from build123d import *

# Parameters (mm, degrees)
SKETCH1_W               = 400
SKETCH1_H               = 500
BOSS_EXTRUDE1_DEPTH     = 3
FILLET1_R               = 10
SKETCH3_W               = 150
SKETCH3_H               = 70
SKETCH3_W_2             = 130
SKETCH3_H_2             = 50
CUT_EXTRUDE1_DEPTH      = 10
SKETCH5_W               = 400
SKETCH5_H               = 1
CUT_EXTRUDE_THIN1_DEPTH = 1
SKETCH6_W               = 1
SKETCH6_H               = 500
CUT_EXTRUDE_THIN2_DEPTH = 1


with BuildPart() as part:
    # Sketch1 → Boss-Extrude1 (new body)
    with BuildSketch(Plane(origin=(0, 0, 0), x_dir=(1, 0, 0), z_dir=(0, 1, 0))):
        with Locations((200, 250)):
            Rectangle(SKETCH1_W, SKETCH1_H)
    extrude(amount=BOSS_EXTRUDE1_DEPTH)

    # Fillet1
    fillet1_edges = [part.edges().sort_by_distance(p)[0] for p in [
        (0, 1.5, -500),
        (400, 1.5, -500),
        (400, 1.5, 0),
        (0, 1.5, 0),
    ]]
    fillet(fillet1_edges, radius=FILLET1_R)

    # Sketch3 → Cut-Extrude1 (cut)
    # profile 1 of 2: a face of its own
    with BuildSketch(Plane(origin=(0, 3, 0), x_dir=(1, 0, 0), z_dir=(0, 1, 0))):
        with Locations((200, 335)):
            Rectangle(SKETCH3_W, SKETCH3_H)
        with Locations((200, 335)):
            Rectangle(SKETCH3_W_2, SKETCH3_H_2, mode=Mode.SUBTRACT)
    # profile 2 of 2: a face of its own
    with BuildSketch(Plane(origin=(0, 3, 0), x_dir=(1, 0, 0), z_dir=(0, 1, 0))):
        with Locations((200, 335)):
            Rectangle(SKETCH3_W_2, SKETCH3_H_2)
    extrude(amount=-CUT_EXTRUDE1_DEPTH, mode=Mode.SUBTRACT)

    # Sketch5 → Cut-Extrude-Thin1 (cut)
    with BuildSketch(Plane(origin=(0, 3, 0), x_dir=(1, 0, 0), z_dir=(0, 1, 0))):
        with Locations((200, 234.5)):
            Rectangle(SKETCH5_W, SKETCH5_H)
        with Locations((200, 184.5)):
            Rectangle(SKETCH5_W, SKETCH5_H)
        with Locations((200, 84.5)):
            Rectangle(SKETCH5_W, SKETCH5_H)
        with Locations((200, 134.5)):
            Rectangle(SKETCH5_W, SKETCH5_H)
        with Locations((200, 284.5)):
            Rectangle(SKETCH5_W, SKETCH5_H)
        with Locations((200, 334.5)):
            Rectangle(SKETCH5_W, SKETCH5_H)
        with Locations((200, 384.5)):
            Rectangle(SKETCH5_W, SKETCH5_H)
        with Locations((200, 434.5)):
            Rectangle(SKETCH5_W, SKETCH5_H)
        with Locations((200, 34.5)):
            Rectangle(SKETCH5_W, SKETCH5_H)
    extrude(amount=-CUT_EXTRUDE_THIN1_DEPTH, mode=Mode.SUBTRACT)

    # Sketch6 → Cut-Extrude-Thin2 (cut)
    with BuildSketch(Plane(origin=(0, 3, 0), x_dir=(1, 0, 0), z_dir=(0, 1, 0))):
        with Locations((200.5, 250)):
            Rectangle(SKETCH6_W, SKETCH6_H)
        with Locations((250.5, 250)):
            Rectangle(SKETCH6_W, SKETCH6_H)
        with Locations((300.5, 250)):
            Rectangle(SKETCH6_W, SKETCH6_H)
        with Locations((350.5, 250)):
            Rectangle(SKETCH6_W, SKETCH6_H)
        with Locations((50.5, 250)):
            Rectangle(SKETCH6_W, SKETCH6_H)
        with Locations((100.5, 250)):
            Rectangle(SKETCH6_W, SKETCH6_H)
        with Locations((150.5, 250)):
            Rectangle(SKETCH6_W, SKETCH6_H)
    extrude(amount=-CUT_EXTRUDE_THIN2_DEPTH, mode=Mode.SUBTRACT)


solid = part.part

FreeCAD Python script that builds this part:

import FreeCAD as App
import Part
import Sketcher
from FreeCAD import Vector


def edges_at(feature, points):
    """Names of the edges that pass closest to the given points."""
    edges = feature.Shape.Edges
    near = lambda p: min(range(len(edges)), key=lambda i: edges[i].distToShape(Part.Vertex(*p))[0])
    return sorted({f"Edge{near(p) + 1}" for p in points})

doc = App.newDocument("Part")
body = doc.addObject("PartDesign::Body", "Body")

# Sketch on XZ plane
sketch1 = doc.addObject("Sketcher::SketchObject", "Sketch")
body.addObject(sketch1)
sketch1.AttachmentSupport = (doc.XZ_Plane, [""])
sketch1.MapMode = "FlatFace"
sketch1.addGeometry(Part.LineSegment(Vector(0, -500, 0), Vector(0, 0, 0)), False)
sketch1.addGeometry(Part.LineSegment(Vector(0, 0, 0), Vector(400, 0, 0)), False)
sketch1.addGeometry(Part.LineSegment(Vector(400, 0, 0), Vector(400, -500, 0)), False)
sketch1.addGeometry(Part.LineSegment(Vector(400, -500, 0), Vector(0, -500, 0)), False)
sketch1.addConstraint(Sketcher.Constraint("Coincident", 0, 2, 1, 1))
sketch1.addConstraint(Sketcher.Constraint("Coincident", 1, 2, 2, 1))
sketch1.addConstraint(Sketcher.Constraint("Coincident", 2, 2, 3, 1))
sketch1.addConstraint(Sketcher.Constraint("Coincident", 3, 2, 0, 1))
sketch1.addConstraint(Sketcher.Constraint("Vertical", 0))
sketch1.addConstraint(Sketcher.Constraint("Horizontal", 1))
sketch1.addConstraint(Sketcher.Constraint("Vertical", 2))
sketch1.addConstraint(Sketcher.Constraint("Horizontal", 3))
sketch1.addConstraint(Sketcher.Constraint("Coincident", 0, 2, -1, 1))
sketch1.addConstraint(Sketcher.Constraint("DistanceX", 1, 1, 1, 2, 400.0))
sketch1.addConstraint(Sketcher.Constraint("DistanceY", 0, 1, 0, 2, 500.0))
pad1 = doc.addObject("PartDesign::Pad", "Pad")
body.addObject(pad1)
pad1.Profile = sketch1
pad1.Length = 3
pad1.Reversed = True
doc.recompute()

fillet = doc.addObject("PartDesign::Fillet", "Fillet")
body.addObject(fillet)
fillet.Base = (pad1, edges_at(pad1, [
    (0, 1.5, -500),
    (400, 1.5, -500),
    (400, 1.5, 0),
    (0, 1.5, 0),
]))
fillet.Radius = 10

# Sketch on XZ plane
sketch2 = doc.addObject("Sketcher::SketchObject", "Sketch001")
body.addObject(sketch2)
sketch2.AttachmentSupport = (doc.XZ_Plane, [""])
sketch2.MapMode = "FlatFace"
sketch2.AttachmentOffset = App.Placement(Vector(0, 0, -3), App.Rotation())
sketch2.addGeometry(Part.LineSegment(Vector(125, -370, 0), Vector(125, -300, 0)), False)
sketch2.addGeometry(Part.LineSegment(Vector(125, -300, 0), Vector(275, -300, 0)), False)
sketch2.addGeometry(Part.LineSegment(Vector(275, -300, 0), Vector(275, -370, 0)), False)
sketch2.addGeometry(Part.LineSegment(Vector(275, -370, 0), Vector(125, -370, 0)), False)
sketch2.addConstraint(Sketcher.Constraint("Coincident", 0, 2, 1, 1))
sketch2.addConstraint(Sketcher.Constraint("Coincident", 1, 2, 2, 1))
sketch2.addConstraint(Sketcher.Constraint("Coincident", 2, 2, 3, 1))
sketch2.addConstraint(Sketcher.Constraint("Coincident", 3, 2, 0, 1))
sketch2.addConstraint(Sketcher.Constraint("Vertical", 0))
sketch2.addConstraint(Sketcher.Constraint("Horizontal", 1))
sketch2.addConstraint(Sketcher.Constraint("Vertical", 2))
sketch2.addConstraint(Sketcher.Constraint("Horizontal", 3))
sketch2.addConstraint(Sketcher.Constraint("DistanceX", 1, 1, 1, 2, 150.0))
sketch2.addConstraint(Sketcher.Constraint("DistanceY", 0, 1, 0, 2, 70.0))
sketch2.addConstraint(Sketcher.Constraint("DistanceX", -1, 1, 0, 2, 125.0))
sketch2.addConstraint(Sketcher.Constraint("DistanceY", 0, 2, -1, 1, 300.0))
pocket1 = doc.addObject("PartDesign::Pocket", "Pocket")
body.addObject(pocket1)
pocket1.Profile = sketch2
pocket1.Length = 10
pocket1.Reversed = True

# Sketch on XZ plane
sketch3 = doc.addObject("Sketcher::SketchObject", "Sketch002")
body.addObject(sketch3)
sketch3.AttachmentSupport = (doc.XZ_Plane, [""])
sketch3.MapMode = "FlatFace"
sketch3.AttachmentOffset = App.Placement(Vector(0, 0, -3), App.Rotation())
sketch3.addGeometry(Part.LineSegment(Vector(0, -235, 0), Vector(0, -234, 0)), False)
sketch3.addGeometry(Part.LineSegment(Vector(0, -234, 0), Vector(400, -234, 0)), False)
sketch3.addGeometry(Part.LineSegment(Vector(400, -234, 0), Vector(400, -235, 0)), False)
sketch3.addGeometry(Part.LineSegment(Vector(400, -235, 0), Vector(0, -235, 0)), False)
sketch3.addGeometry(Part.LineSegment(Vector(0, -185, 0), Vector(0, -184, 0)), False)
sketch3.addGeometry(Part.LineSegment(Vector(0, -184, 0), Vector(400, -184, 0)), False)
sketch3.addGeometry(Part.LineSegment(Vector(400, -184, 0), Vector(400, -185, 0)), False)
sketch3.addGeometry(Part.LineSegment(Vector(400, -185, 0), Vector(0, -185, 0)), False)
sketch3.addGeometry(Part.LineSegment(Vector(0, -85, 0), Vector(0, -84, 0)), False)
sketch3.addGeometry(Part.LineSegment(Vector(0, -84, 0), Vector(400, -84, 0)), False)
sketch3.addGeometry(Part.LineSegment(Vector(400, -84, 0), Vector(400, -85, 0)), False)
sketch3.addGeometry(Part.LineSegment(Vector(400, -85, 0), Vector(0, -85, 0)), False)
sketch3.addGeometry(Part.LineSegment(Vector(0, -135, 0), Vector(0, -134, 0)), False)
sketch3.addGeometry(Part.LineSegment(Vector(0, -134, 0), Vector(400, -134, 0)), False)
sketch3.addGeometry(Part.LineSegment(Vector(400, -134, 0), Vector(400, -135, 0)), False)
sketch3.addGeometry(Part.LineSegment(Vector(400, -135, 0), Vector(0, -135, 0)), False)
sketch3.addGeometry(Part.LineSegment(Vector(0, -285, 0), Vector(0, -284, 0)), False)
sketch3.addGeometry(Part.LineSegment(Vector(0, -284, 0), Vector(400, -284, 0)), False)
sketch3.addGeometry(Part.LineSegment(Vector(400, -284, 0), Vector(400, -285, 0)), False)
sketch3.addGeometry(Part.LineSegment(Vector(400, -285, 0), Vector(0, -285, 0)), False)
sketch3.addGeometry(Part.LineSegment(Vector(0, -335, 0), Vector(0, -334, 0)), False)
sketch3.addGeometry(Part.LineSegment(Vector(0, -334, 0), Vector(400, -334, 0)), False)
sketch3.addGeometry(Part.LineSegment(Vector(400, -334, 0), Vector(400, -335, 0)), False)
sketch3.addGeometry(Part.LineSegment(Vector(400, -335, 0), Vector(0, -335, 0)), False)
sketch3.addGeometry(Part.LineSegment(Vector(0, -385, 0), Vector(0, -384, 0)), False)
sketch3.addGeometry(Part.LineSegment(Vector(0, -384, 0), Vector(400, -384, 0)), False)
sketch3.addGeometry(Part.LineSegment(Vector(400, -384, 0), Vector(400, -385, 0)), False)
sketch3.addGeometry(Part.LineSegment(Vector(400, -385, 0), Vector(0, -385, 0)), False)
sketch3.addGeometry(Part.LineSegment(Vector(0, -435, 0), Vector(0, -434, 0)), False)
sketch3.addGeometry(Part.LineSegment(Vector(0, -434, 0), Vector(400, -434, 0)), False)
sketch3.addGeometry(Part.LineSegment(Vector(400, -434, 0), Vector(400, -435, 0)), False)
sketch3.addGeometry(Part.LineSegment(Vector(400, -435, 0), Vector(0, -435, 0)), False)
sketch3.addGeometry(Part.LineSegment(Vector(0, -35, 0), Vector(0, -34, 0)), False)
sketch3.addGeometry(Part.LineSegment(Vector(0, -34, 0), Vector(400, -34, 0)), False)
sketch3.addGeometry(Part.LineSegment(Vector(400, -34, 0), Vector(400, -35, 0)), False)
sketch3.addGeometry(Part.LineSegment(Vector(400, -35, 0), Vector(0, -35, 0)), False)
sketch3.addConstraint(Sketcher.Constraint("Coincident", 0, 2, 1, 1))
sketch3.addConstraint(Sketcher.Constraint("Coincident", 1, 2, 2, 1))
sketch3.addConstraint(Sketcher.Constraint("Coincident", 2, 2, 3, 1))
sketch3.addConstraint(Sketcher.Constraint("Coincident", 3, 2, 0, 1))
sketch3.addConstraint(Sketcher.Constraint("Coincident", 4, 2, 5, 1))
sketch3.addConstraint(Sketcher.Constraint("Coincident", 5, 2, 6, 1))
sketch3.addConstraint(Sketcher.Constraint("Coincident", 6, 2, 7, 1))
sketch3.addConstraint(Sketcher.Constraint("Coincident", 7, 2, 4, 1))
sketch3.addConstraint(Sketcher.Constraint("Coincident", 8, 2, 9, 1))
sketch3.addConstraint(Sketcher.Constraint("Coincident", 9, 2, 10, 1))
sketch3.addConstraint(Sketcher.Constraint("Coincident", 10, 2, 11, 1))
sketch3.addConstraint(Sketcher.Constraint("Coincident", 11, 2, 8, 1))
sketch3.addConstraint(Sketcher.Constraint("Coincident", 12, 2, 13, 1))
sketch3.addConstraint(Sketcher.Constraint("Coincident", 13, 2, 14, 1))
sketch3.addConstraint(Sketcher.Constraint("Coincident", 14, 2, 15, 1))
sketch3.addConstraint(Sketcher.Constraint("Coincident", 15, 2, 12, 1))
sketch3.addConstraint(Sketcher.Constraint("Coincident", 16, 2, 17, 1))
sketch3.addConstraint(Sketcher.Constraint("Coincident", 17, 2, 18, 1))
sketch3.addConstraint(Sketcher.Constraint("Coincident", 18, 2, 19, 1))
sketch3.addConstraint(Sketcher.Constraint("Coincident", 19, 2, 16, 1))
sketch3.addConstraint(Sketcher.Constraint("Coincident", 20, 2, 21, 1))
sketch3.addConstraint(Sketcher.Constraint("Coincident", 21, 2, 22, 1))
sketch3.addConstraint(Sketcher.Constraint("Coincident", 22, 2, 23, 1))
sketch3.addConstraint(Sketcher.Constraint("Coincident", 23, 2, 20, 1))
sketch3.addConstraint(Sketcher.Constraint("Coincident", 24, 2, 25, 1))
sketch3.addConstraint(Sketcher.Constraint("Coincident", 25, 2, 26, 1))
sketch3.addConstraint(Sketcher.Constraint("Coincident", 26, 2, 27, 1))
sketch3.addConstraint(Sketcher.Constraint("Coincident", 27, 2, 24, 1))
sketch3.addConstraint(Sketcher.Constraint("Coincident", 28, 2, 29, 1))
sketch3.addConstraint(Sketcher.Constraint("Coincident", 29, 2, 30, 1))
sketch3.addConstraint(Sketcher.Constraint("Coincident", 30, 2, 31, 1))
sketch3.addConstraint(Sketcher.Constraint("Coincident", 31, 2, 28, 1))
sketch3.addConstraint(Sketcher.Constraint("Coincident", 32, 2, 33, 1))
sketch3.addConstraint(Sketcher.Constraint("Coincident", 33, 2, 34, 1))
sketch3.addConstraint(Sketcher.Constraint("Coincident", 34, 2, 35, 1))
sketch3.addConstraint(Sketcher.Constraint("Coincident", 35, 2, 32, 1))
sketch3.addConstraint(Sketcher.Constraint("Vertical", 0))
sketch3.addConstraint(Sketcher.Constraint("Horizontal", 1))
sketch3.addConstraint(Sketcher.Constraint("Vertical", 2))
sketch3.addConstraint(Sketcher.Constraint("Horizontal", 3))
sketch3.addConstraint(Sketcher.Constraint("Vertical", 4))
sketch3.addConstraint(Sketcher.Constraint("Horizontal", 5))
sketch3.addConstraint(Sketcher.Constraint("Vertical", 6))
sketch3.addConstraint(Sketcher.Constraint("Horizontal", 7))
sketch3.addConstraint(Sketcher.Constraint("Vertical", 8))
sketch3.addConstraint(Sketcher.Constraint("Horizontal", 9))
sketch3.addConstraint(Sketcher.Constraint("Vertical", 10))
sketch3.addConstraint(Sketcher.Constraint("Horizontal", 11))
sketch3.addConstraint(Sketcher.Constraint("Vertical", 12))
sketch3.addConstraint(Sketcher.Constraint("Horizontal", 13))
sketch3.addConstraint(Sketcher.Constraint("Vertical", 14))
sketch3.addConstraint(Sketcher.Constraint("Horizontal", 15))
sketch3.addConstraint(Sketcher.Constraint("Vertical", 16))
sketch3.addConstraint(Sketcher.Constraint("Horizontal", 17))
sketch3.addConstraint(Sketcher.Constraint("Vertical", 18))
sketch3.addConstraint(Sketcher.Constraint("Horizontal", 19))
sketch3.addConstraint(Sketcher.Constraint("Vertical", 20))
sketch3.addConstraint(Sketcher.Constraint("Horizontal", 21))
sketch3.addConstraint(Sketcher.Constraint("Vertical", 22))
sketch3.addConstraint(Sketcher.Constraint("Horizontal", 23))
sketch3.addConstraint(Sketcher.Constraint("Vertical", 24))
sketch3.addConstraint(Sketcher.Constraint("Horizontal", 25))
sketch3.addConstraint(Sketcher.Constraint("Vertical", 26))
sketch3.addConstraint(Sketcher.Constraint("Horizontal", 27))
sketch3.addConstraint(Sketcher.Constraint("Vertical", 28))
sketch3.addConstraint(Sketcher.Constraint("Horizontal", 29))
sketch3.addConstraint(Sketcher.Constraint("Vertical", 30))
sketch3.addConstraint(Sketcher.Constraint("Horizontal", 31))
sketch3.addConstraint(Sketcher.Constraint("Vertical", 32))
sketch3.addConstraint(Sketcher.Constraint("Horizontal", 33))
sketch3.addConstraint(Sketcher.Constraint("Vertical", 34))
sketch3.addConstraint(Sketcher.Constraint("Horizontal", 35))
sketch3.addConstraint(Sketcher.Constraint("PointOnObject", 0, 2, -2))
sketch3.addConstraint(Sketcher.Constraint("PointOnObject", 4, 2, -2))
sketch3.addConstraint(Sketcher.Constraint("PointOnObject", 8, 2, -2))
sketch3.addConstraint(Sketcher.Constraint("PointOnObject", 12, 2, -2))
sketch3.addConstraint(Sketcher.Constraint("PointOnObject", 16, 2, -2))
sketch3.addConstraint(Sketcher.Constraint("PointOnObject", 20, 2, -2))
sketch3.addConstraint(Sketcher.Constraint("PointOnObject", 24, 2, -2))
sketch3.addConstraint(Sketcher.Constraint("PointOnObject", 28, 2, -2))
sketch3.addConstraint(Sketcher.Constraint("PointOnObject", 32, 2, -2))
sketch3.addConstraint(Sketcher.Constraint("Vertical", 2, 2, 5, 2))
sketch3.addConstraint(Sketcher.Constraint("Vertical", 6, 2, 9, 2))
sketch3.addConstraint(Sketcher.Constraint("Vertical", 10, 2, 13, 2))
sketch3.addConstraint(Sketcher.Constraint("Vertical", 14, 2, 17, 2))
sketch3.addConstraint(Sketcher.Constraint("Vertical", 18, 2, 21, 2))
sketch3.addConstraint(Sketcher.Constraint("Vertical", 22, 2, 25, 2))
sketch3.addConstraint(Sketcher.Constraint("Vertical", 26, 2, 29, 2))
sketch3.addConstraint(Sketcher.Constraint("Vertical", 30, 2, 33, 2))
sketch3.addConstraint(Sketcher.Constraint("Equal", 2, 4))
sketch3.addConstraint(Sketcher.Constraint("Equal", 6, 8))
sketch3.addConstraint(Sketcher.Constraint("Equal", 10, 12))
sketch3.addConstraint(Sketcher.Constraint("Equal", 14, 16))
sketch3.addConstraint(Sketcher.Constraint("Equal", 18, 20))
sketch3.addConstraint(Sketcher.Constraint("Equal", 22, 24))
sketch3.addConstraint(Sketcher.Constraint("Equal", 26, 28))
sketch3.addConstraint(Sketcher.Constraint("Equal", 30, 32))
sketch3.addConstraint(Sketcher.Constraint("DistanceX", 1, 1, 1, 2, 400.0))
sketch3.addConstraint(Sketcher.Constraint("DistanceY", 0, 1, 0, 2, 1.0))
sketch3.addConstraint(Sketcher.Constraint("DistanceY", 0, 2, -1, 1, 234.0))
sketch3.addConstraint(Sketcher.Constraint("DistanceY", 4, 2, -1, 1, 184.0))
sketch3.addConstraint(Sketcher.Constraint("DistanceY", 8, 2, -1, 1, 84.0))
sketch3.addConstraint(Sketcher.Constraint("DistanceY", 12, 2, -1, 1, 134.0))
sketch3.addConstraint(Sketcher.Constraint("DistanceY", 16, 2, -1, 1, 284.0))
sketch3.addConstraint(Sketcher.Constraint("DistanceY", 20, 2, -1, 1, 334.0))
sketch3.addConstraint(Sketcher.Constraint("DistanceY", 24, 2, -1, 1, 384.0))
sketch3.addConstraint(Sketcher.Constraint("DistanceY", 28, 2, -1, 1, 434.0))
sketch3.addConstraint(Sketcher.Constraint("DistanceY", 32, 2, -1, 1, 34.0))
pocket2 = doc.addObject("PartDesign::Pocket", "Pocket001")
body.addObject(pocket2)
pocket2.Profile = sketch3
pocket2.Length = 1
pocket2.Reversed = True

# Sketch on XZ plane
sketch4 = doc.addObject("Sketcher::SketchObject", "Sketch003")
body.addObject(sketch4)
sketch4.AttachmentSupport = (doc.XZ_Plane, [""])
sketch4.MapMode = "FlatFace"
sketch4.AttachmentOffset = App.Placement(Vector(0, 0, -3), App.Rotation())
sketch4.addGeometry(Part.LineSegment(Vector(200, -500, 0), Vector(200, 0, 0)), False)
sketch4.addGeometry(Part.LineSegment(Vector(200, 0, 0), Vector(201, 0, 0)), False)
sketch4.addGeometry(Part.LineSegment(Vector(201, 0, 0), Vector(201, -500, 0)), False)
sketch4.addGeometry(Part.LineSegment(Vector(201, -500, 0), Vector(200, -500, 0)), False)
sketch4.addGeometry(Part.LineSegment(Vector(250, -500, 0), Vector(250, 0, 0)), False)
sketch4.addGeometry(Part.LineSegment(Vector(250, 0, 0), Vector(251, 0, 0)), False)
sketch4.addGeometry(Part.LineSegment(Vector(251, 0, 0), Vector(251, -500, 0)), False)
sketch4.addGeometry(Part.LineSegment(Vector(251, -500, 0), Vector(250, -500, 0)), False)
sketch4.addGeometry(Part.LineSegment(Vector(300, -500, 0), Vector(300, 0, 0)), False)
sketch4.addGeometry(Part.LineSegment(Vector(300, 0, 0), Vector(301, 0, 0)), False)
sketch4.addGeometry(Part.LineSegment(Vector(301, 0, 0), Vector(301, -500, 0)), False)
sketch4.addGeometry(Part.LineSegment(Vector(301, -500, 0), Vector(300, -500, 0)), False)
sketch4.addGeometry(Part.LineSegment(Vector(350, -500, 0), Vector(350, 0, 0)), False)
sketch4.addGeometry(Part.LineSegment(Vector(350, 0, 0), Vector(351, 0, 0)), False)
sketch4.addGeometry(Part.LineSegment(Vector(351, 0, 0), Vector(351, -500, 0)), False)
sketch4.addGeometry(Part.LineSegment(Vector(351, -500, 0), Vector(350, -500, 0)), False)
sketch4.addGeometry(Part.LineSegment(Vector(50, -500, 0), Vector(50, 0, 0)), False)
sketch4.addGeometry(Part.LineSegment(Vector(50, 0, 0), Vector(51, 0, 0)), False)
sketch4.addGeometry(Part.LineSegment(Vector(51, 0, 0), Vector(51, -500, 0)), False)
sketch4.addGeometry(Part.LineSegment(Vector(51, -500, 0), Vector(50, -500, 0)), False)
sketch4.addGeometry(Part.LineSegment(Vector(100, -500, 0), Vector(100, 0, 0)), False)
sketch4.addGeometry(Part.LineSegment(Vector(100, 0, 0), Vector(101, 0, 0)), False)
sketch4.addGeometry(Part.LineSegment(Vector(101, 0, 0), Vector(101, -500, 0)), False)
sketch4.addGeometry(Part.LineSegment(Vector(101, -500, 0), Vector(100, -500, 0)), False)
sketch4.addGeometry(Part.LineSegment(Vector(150, -500, 0), Vector(150, 0, 0)), False)
sketch4.addGeometry(Part.LineSegment(Vector(150, 0, 0), Vector(151, 0, 0)), False)
sketch4.addGeometry(Part.LineSegment(Vector(151, 0, 0), Vector(151, -500, 0)), False)
sketch4.addGeometry(Part.LineSegment(Vector(151, -500, 0), Vector(150, -500, 0)), False)
sketch4.addConstraint(Sketcher.Constraint("Coincident", 0, 2, 1, 1))
sketch4.addConstraint(Sketcher.Constraint("Coincident", 1, 2, 2, 1))
sketch4.addConstraint(Sketcher.Constraint("Coincident", 2, 2, 3, 1))
sketch4.addConstraint(Sketcher.Constraint("Coincident", 3, 2, 0, 1))
sketch4.addConstraint(Sketcher.Constraint("Coincident", 4, 2, 5, 1))
sketch4.addConstraint(Sketcher.Constraint("Coincident", 5, 2, 6, 1))
sketch4.addConstraint(Sketcher.Constraint("Coincident", 6, 2, 7, 1))
sketch4.addConstraint(Sketcher.Constraint("Coincident", 7, 2, 4, 1))
sketch4.addConstraint(Sketcher.Constraint("Coincident", 8, 2, 9, 1))
sketch4.addConstraint(Sketcher.Constraint("Coincident", 9, 2, 10, 1))
sketch4.addConstraint(Sketcher.Constraint("Coincident", 10, 2, 11, 1))
sketch4.addConstraint(Sketcher.Constraint("Coincident", 11, 2, 8, 1))
sketch4.addConstraint(Sketcher.Constraint("Coincident", 12, 2, 13, 1))
sketch4.addConstraint(Sketcher.Constraint("Coincident", 13, 2, 14, 1))
sketch4.addConstraint(Sketcher.Constraint("Coincident", 14, 2, 15, 1))
sketch4.addConstraint(Sketcher.Constraint("Coincident", 15, 2, 12, 1))
sketch4.addConstraint(Sketcher.Constraint("Coincident", 16, 2, 17, 1))
sketch4.addConstraint(Sketcher.Constraint("Coincident", 17, 2, 18, 1))
sketch4.addConstraint(Sketcher.Constraint("Coincident", 18, 2, 19, 1))
sketch4.addConstraint(Sketcher.Constraint("Coincident", 19, 2, 16, 1))
sketch4.addConstraint(Sketcher.Constraint("Coincident", 20, 2, 21, 1))
sketch4.addConstraint(Sketcher.Constraint("Coincident", 21, 2, 22, 1))
sketch4.addConstraint(Sketcher.Constraint("Coincident", 22, 2, 23, 1))
sketch4.addConstraint(Sketcher.Constraint("Coincident", 23, 2, 20, 1))
sketch4.addConstraint(Sketcher.Constraint("Coincident", 24, 2, 25, 1))
sketch4.addConstraint(Sketcher.Constraint("Coincident", 25, 2, 26, 1))
sketch4.addConstraint(Sketcher.Constraint("Coincident", 26, 2, 27, 1))
sketch4.addConstraint(Sketcher.Constraint("Coincident", 27, 2, 24, 1))
sketch4.addConstraint(Sketcher.Constraint("Vertical", 0))
sketch4.addConstraint(Sketcher.Constraint("Horizontal", 1))
sketch4.addConstraint(Sketcher.Constraint("Vertical", 2))
sketch4.addConstraint(Sketcher.Constraint("Horizontal", 3))
sketch4.addConstraint(Sketcher.Constraint("Vertical", 4))
sketch4.addConstraint(Sketcher.Constraint("Horizontal", 5))
sketch4.addConstraint(Sketcher.Constraint("Vertical", 6))
sketch4.addConstraint(Sketcher.Constraint("Horizontal", 7))
sketch4.addConstraint(Sketcher.Constraint("Vertical", 8))
sketch4.addConstraint(Sketcher.Constraint("Horizontal", 9))
sketch4.addConstraint(Sketcher.Constraint("Vertical", 10))
sketch4.addConstraint(Sketcher.Constraint("Horizontal", 11))
sketch4.addConstraint(Sketcher.Constraint("Vertical", 12))
sketch4.addConstraint(Sketcher.Constraint("Horizontal", 13))
sketch4.addConstraint(Sketcher.Constraint("Vertical", 14))
sketch4.addConstraint(Sketcher.Constraint("Horizontal", 15))
sketch4.addConstraint(Sketcher.Constraint("Vertical", 16))
sketch4.addConstraint(Sketcher.Constraint("Horizontal", 17))
sketch4.addConstraint(Sketcher.Constraint("Vertical", 18))
sketch4.addConstraint(Sketcher.Constraint("Horizontal", 19))
sketch4.addConstraint(Sketcher.Constraint("Vertical", 20))
sketch4.addConstraint(Sketcher.Constraint("Horizontal", 21))
sketch4.addConstraint(Sketcher.Constraint("Vertical", 22))
sketch4.addConstraint(Sketcher.Constraint("Horizontal", 23))
sketch4.addConstraint(Sketcher.Constraint("Vertical", 24))
sketch4.addConstraint(Sketcher.Constraint("Horizontal", 25))
sketch4.addConstraint(Sketcher.Constraint("Vertical", 26))
sketch4.addConstraint(Sketcher.Constraint("Horizontal", 27))
sketch4.addConstraint(Sketcher.Constraint("PointOnObject", 0, 2, -1))
sketch4.addConstraint(Sketcher.Constraint("PointOnObject", 4, 2, -1))
sketch4.addConstraint(Sketcher.Constraint("PointOnObject", 8, 2, -1))
sketch4.addConstraint(Sketcher.Constraint("PointOnObject", 12, 2, -1))
sketch4.addConstraint(Sketcher.Constraint("PointOnObject", 16, 2, -1))
sketch4.addConstraint(Sketcher.Constraint("PointOnObject", 20, 2, -1))
sketch4.addConstraint(Sketcher.Constraint("PointOnObject", 24, 2, -1))
sketch4.addConstraint(Sketcher.Constraint("Horizontal", 3, 2, 6, 2))
sketch4.addConstraint(Sketcher.Constraint("Horizontal", 7, 2, 10, 2))
sketch4.addConstraint(Sketcher.Constraint("Horizontal", 11, 2, 14, 2))
sketch4.addConstraint(Sketcher.Constraint("Horizontal", 15, 2, 18, 2))
sketch4.addConstraint(Sketcher.Constraint("Horizontal", 19, 2, 22, 2))
sketch4.addConstraint(Sketcher.Constraint("Horizontal", 23, 2, 26, 2))
sketch4.addConstraint(Sketcher.Constraint("Equal", 3, 5))
sketch4.addConstraint(Sketcher.Constraint("Equal", 7, 9))
sketch4.addConstraint(Sketcher.Constraint("Equal", 11, 13))
sketch4.addConstraint(Sketcher.Constraint("Equal", 15, 17))
sketch4.addConstraint(Sketcher.Constraint("Equal", 19, 21))
sketch4.addConstraint(Sketcher.Constraint("Equal", 23, 25))
sketch4.addConstraint(Sketcher.Constraint("DistanceX", 1, 1, 1, 2, 1.0))
sketch4.addConstraint(Sketcher.Constraint("DistanceY", 0, 1, 0, 2, 500.0))
sketch4.addConstraint(Sketcher.Constraint("DistanceX", -1, 1, 0, 2, 200.0))
sketch4.addConstraint(Sketcher.Constraint("DistanceX", -1, 1, 4, 2, 250.0))
sketch4.addConstraint(Sketcher.Constraint("DistanceX", -1, 1, 8, 2, 300.0))
sketch4.addConstraint(Sketcher.Constraint("DistanceX", -1, 1, 12, 2, 350.0))
sketch4.addConstraint(Sketcher.Constraint("DistanceX", -1, 1, 16, 2, 50.0))
sketch4.addConstraint(Sketcher.Constraint("DistanceX", -1, 1, 20, 2, 100.0))
sketch4.addConstraint(Sketcher.Constraint("DistanceX", -1, 1, 24, 2, 150.0))
pocket3 = doc.addObject("PartDesign::Pocket", "Pocket002")
body.addObject(pocket3)
pocket3.Profile = sketch4
pocket3.Length = 1
pocket3.Reversed = True

doc.recompute()
